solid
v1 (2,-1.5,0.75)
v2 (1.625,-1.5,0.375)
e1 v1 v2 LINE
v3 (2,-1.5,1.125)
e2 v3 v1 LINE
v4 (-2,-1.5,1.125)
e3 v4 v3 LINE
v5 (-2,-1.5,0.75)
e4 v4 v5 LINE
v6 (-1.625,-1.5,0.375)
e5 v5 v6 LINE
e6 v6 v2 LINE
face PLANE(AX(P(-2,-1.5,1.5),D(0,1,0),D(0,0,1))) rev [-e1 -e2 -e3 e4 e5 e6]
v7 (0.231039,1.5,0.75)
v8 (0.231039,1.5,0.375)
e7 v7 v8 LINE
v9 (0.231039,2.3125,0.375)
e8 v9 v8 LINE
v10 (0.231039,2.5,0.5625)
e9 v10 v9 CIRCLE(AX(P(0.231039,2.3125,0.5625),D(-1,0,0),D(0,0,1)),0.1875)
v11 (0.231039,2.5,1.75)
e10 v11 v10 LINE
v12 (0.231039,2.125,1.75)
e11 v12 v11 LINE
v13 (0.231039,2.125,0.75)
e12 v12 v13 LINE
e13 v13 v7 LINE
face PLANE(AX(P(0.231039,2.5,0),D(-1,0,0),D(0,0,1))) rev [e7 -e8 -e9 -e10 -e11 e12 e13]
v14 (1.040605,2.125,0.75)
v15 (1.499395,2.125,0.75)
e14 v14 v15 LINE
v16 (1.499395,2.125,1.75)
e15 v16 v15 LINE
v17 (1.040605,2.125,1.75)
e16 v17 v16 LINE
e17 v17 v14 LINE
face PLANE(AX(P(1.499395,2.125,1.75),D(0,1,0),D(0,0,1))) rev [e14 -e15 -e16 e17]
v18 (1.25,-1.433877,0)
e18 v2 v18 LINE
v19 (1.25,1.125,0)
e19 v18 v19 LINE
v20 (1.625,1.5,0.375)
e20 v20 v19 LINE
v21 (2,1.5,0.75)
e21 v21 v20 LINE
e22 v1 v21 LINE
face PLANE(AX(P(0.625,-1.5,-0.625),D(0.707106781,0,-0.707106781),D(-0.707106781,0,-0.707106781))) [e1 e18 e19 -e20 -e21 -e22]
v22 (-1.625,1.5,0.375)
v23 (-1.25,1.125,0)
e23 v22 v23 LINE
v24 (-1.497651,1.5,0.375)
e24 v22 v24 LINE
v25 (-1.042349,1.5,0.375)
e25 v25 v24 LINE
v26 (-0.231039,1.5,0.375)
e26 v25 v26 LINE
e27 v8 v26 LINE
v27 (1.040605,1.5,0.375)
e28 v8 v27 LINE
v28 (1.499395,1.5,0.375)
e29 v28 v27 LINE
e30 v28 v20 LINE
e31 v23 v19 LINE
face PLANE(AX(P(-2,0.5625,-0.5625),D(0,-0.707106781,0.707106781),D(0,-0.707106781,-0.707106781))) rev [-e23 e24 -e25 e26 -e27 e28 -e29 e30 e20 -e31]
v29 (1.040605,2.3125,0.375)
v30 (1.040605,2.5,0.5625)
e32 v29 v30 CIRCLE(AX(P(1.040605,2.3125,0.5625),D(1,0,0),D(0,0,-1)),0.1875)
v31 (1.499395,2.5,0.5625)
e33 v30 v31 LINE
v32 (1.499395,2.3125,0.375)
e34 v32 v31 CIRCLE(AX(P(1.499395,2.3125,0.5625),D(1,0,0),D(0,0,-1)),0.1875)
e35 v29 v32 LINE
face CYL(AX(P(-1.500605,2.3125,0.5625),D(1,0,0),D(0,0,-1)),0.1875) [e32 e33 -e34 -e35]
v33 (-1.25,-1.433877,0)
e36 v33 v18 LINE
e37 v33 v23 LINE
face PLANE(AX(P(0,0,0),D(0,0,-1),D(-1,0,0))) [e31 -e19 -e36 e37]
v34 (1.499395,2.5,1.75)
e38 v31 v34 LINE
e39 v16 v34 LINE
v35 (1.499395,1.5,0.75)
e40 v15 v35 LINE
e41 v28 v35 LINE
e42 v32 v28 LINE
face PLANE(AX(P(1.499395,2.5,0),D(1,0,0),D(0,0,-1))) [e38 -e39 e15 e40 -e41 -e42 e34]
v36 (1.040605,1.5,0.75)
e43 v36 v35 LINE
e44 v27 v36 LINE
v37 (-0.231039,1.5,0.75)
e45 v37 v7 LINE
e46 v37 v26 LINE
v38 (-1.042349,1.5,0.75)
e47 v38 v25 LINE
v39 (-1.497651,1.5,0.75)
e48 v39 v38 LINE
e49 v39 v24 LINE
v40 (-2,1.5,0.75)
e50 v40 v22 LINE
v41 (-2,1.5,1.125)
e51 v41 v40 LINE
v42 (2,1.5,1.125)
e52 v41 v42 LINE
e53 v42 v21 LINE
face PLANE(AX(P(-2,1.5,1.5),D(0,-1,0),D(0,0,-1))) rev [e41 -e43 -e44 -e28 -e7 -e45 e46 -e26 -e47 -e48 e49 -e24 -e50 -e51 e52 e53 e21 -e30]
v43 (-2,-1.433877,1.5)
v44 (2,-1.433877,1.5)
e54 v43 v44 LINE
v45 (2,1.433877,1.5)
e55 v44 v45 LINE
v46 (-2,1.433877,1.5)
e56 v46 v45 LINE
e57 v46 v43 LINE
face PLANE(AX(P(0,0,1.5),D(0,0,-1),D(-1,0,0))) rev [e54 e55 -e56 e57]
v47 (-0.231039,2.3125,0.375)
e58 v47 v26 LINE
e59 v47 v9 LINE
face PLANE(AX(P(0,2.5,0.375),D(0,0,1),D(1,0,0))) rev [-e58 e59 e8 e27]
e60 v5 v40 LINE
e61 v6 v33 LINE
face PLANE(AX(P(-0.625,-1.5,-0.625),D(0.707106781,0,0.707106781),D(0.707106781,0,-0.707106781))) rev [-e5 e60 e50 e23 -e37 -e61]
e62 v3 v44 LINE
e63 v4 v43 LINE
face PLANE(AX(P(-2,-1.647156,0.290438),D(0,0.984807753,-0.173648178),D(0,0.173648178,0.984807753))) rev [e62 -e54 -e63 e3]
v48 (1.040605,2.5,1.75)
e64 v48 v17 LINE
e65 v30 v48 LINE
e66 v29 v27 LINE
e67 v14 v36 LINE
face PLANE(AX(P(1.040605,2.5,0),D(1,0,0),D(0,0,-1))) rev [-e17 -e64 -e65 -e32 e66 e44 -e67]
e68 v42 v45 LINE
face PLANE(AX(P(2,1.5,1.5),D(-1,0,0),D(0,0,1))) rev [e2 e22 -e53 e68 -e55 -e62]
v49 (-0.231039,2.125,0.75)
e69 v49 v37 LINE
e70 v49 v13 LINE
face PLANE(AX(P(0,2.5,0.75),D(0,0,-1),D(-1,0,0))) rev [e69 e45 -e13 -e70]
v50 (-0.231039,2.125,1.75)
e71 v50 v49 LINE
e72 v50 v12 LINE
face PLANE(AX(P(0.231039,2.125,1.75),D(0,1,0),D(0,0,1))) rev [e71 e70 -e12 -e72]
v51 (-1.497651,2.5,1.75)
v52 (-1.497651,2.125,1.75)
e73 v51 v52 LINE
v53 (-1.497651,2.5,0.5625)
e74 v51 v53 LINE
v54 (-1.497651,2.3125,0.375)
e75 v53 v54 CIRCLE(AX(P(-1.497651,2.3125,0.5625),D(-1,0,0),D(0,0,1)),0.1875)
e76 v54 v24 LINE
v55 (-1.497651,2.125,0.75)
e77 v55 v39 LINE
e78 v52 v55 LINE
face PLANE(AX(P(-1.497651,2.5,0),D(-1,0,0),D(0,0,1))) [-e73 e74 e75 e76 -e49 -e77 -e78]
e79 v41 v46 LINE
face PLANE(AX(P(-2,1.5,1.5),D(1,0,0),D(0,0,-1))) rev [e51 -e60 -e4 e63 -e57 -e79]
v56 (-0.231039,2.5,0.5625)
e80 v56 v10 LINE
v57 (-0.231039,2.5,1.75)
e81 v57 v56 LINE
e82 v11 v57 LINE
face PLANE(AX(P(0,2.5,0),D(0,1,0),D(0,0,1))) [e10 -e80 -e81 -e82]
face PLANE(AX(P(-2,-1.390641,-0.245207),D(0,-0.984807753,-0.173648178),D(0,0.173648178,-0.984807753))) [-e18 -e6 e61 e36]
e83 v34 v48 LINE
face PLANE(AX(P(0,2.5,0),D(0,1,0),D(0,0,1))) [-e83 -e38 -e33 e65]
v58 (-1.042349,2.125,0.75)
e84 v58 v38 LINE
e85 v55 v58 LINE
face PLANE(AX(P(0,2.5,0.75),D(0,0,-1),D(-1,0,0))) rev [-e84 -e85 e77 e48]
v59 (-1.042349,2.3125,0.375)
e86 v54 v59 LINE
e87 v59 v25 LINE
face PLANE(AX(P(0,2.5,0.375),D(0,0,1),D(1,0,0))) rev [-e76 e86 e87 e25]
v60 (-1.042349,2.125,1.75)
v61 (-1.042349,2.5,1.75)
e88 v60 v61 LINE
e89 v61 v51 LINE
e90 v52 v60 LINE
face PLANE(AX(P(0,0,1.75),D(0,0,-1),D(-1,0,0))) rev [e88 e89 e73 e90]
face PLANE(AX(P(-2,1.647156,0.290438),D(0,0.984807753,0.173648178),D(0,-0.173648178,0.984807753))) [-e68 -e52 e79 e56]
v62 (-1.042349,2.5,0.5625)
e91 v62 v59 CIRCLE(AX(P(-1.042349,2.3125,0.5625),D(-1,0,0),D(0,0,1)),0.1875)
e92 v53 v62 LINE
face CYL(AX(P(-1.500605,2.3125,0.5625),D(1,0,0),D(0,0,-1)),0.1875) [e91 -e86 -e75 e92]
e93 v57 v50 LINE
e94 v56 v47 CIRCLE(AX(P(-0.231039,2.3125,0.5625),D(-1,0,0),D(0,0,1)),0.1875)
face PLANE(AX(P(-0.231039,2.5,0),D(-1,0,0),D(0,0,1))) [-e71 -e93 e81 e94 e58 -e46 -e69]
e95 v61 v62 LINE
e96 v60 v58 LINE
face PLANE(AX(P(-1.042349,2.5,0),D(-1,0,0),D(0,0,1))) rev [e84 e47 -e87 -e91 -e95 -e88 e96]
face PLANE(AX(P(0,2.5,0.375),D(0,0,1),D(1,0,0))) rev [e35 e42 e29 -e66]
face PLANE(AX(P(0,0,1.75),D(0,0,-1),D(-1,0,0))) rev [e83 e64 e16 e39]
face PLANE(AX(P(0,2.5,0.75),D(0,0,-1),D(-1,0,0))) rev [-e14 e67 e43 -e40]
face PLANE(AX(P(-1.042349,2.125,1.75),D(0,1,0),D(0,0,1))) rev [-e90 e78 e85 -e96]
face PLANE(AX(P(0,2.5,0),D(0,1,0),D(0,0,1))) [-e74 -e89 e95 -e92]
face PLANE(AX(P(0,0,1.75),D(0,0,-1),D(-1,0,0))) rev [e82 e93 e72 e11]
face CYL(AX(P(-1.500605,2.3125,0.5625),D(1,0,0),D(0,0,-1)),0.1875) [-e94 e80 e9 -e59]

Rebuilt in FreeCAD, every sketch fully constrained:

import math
import FreeCAD as App
import Part
import Sketcher

V = App.Vector
Q = App.Units.Quantity


def add_polygon(sketch, points):
    """Adds a closed chain of lines whose ends are joined by coincident constraints."""
    first, n = sketch.GeometryCount, len(points)
    for a, b in zip(points, points[1:] + points[:1]):
        sketch.addGeometry(Part.LineSegment(App.Vector(*a, 0), App.Vector(*b, 0)), False)
    for i in range(n):
        sketch.addConstraint(Sketcher.Constraint("Coincident", first + i, 2, first + (i + 1) % n, 1))

doc = App.newDocument("Part")
body = doc.addObject("PartDesign::Body", "Body")

sketch1 = doc.addObject("Sketcher::SketchObject", "Sketch")
body.addObject(sketch1)
sketch1.AttachmentSupport = (doc.XY_Plane, [""])
sketch1.MapMode = "FlatFace"
add_polygon(sketch1, [(-2, 1.5), (-2, -1.5), (2, -1.5), (2, 1.5)])
sketch1.addConstraint([
    Sketcher.Constraint("Vertical", 0),
    Sketcher.Constraint("Horizontal", 1),
    Sketcher.Constraint("Vertical", 2),
    Sketcher.Constraint("Horizontal", 3),
    Sketcher.Constraint("Symmetric", 0, 2, 2, 2, -1, 1),
    Sketcher.Constraint("DistanceX", 1, 1, 1, 2, 4.0),
    Sketcher.Constraint("DistanceY", 0, 2, 0, 1, 3.0),
])
pad1 = doc.addObject("PartDesign::Pad", "Pad")
body.addObject(pad1)
pad1.Profile = sketch1
pad1.Length = 1.5

sketch2 = doc.addObject("Sketcher::SketchObject", "Sketch001")
body.addObject(sketch2)
sketch2.AttachmentSupport = (doc.XZ_Plane, [""])
sketch2.MapMode = "FlatFace"
sketch2.AttachmentOffset = App.Placement(V(0, 0, -1.5), App.Rotation())
add_polygon(sketch2, [(-2, 0), (-2, 0.8), (-1.2, 0)])
add_polygon(sketch2, [(1.2, 0), (2, 0.8), (2, 0)])
sketch2.addConstraint([
    Sketcher.Constraint("Vertical", 0),
    Sketcher.Constraint("Horizontal", 2),
    Sketcher.Constraint("Vertical", 4),
    Sketcher.Constraint("Horizontal", 5),
    Sketcher.Constraint("Symmetric", 2, 2, 4, 2, -1, 1),
    Sketcher.Constraint("Symmetric", 1, 2, 5, 2, -2),
    Sketcher.Constraint("Perpendicular", 1, 3),
    Sketcher.Constraint("Horizontal", 0, 2, 3, 2),
    Sketcher.Constraint("DistanceX", 0, 2, -1, 1, 2.0),
    Sketcher.Constraint("DistanceX", 2, 2, 2, 1, 0.75),
])
pocket1 = doc.addObject("PartDesign::Pocket", "Pocket")
body.addObject(pocket1)
pocket1.Profile = sketch2
pocket1.Length = 3
pocket1.Reversed = True

sketch3 = doc.addObject("Sketcher::SketchObject", "Sketch002")
body.addObject(sketch3)
sketch3.AttachmentSupport = (doc.YZ_Plane, [""])
sketch3.MapMode = "FlatFace"
sketch3.AttachmentOffset = App.Placement(V(0, 0, 2), App.Rotation())
add_polygon(sketch3, [(1.12, 0), (1.5, 0), (1.5, 0.38)])
add_polygon(sketch3, [(-1.5, 0), (-1.43, 0), (-1.5, 0.38)])
add_polygon(sketch3, [(-1.5, 1.5), (-1.5, 1.12), (-1.43, 1.5)])
add_polygon(sketch3, [(1.43, 1.5), (1.5, 1.12), (1.5, 1.5)])
sketch3.addConstraint([
    Sketcher.Constraint("Horizontal", 0),
    Sketcher.Constraint("Vertical", 1),
    Sketcher.Constraint("Horizontal", 3),
    Sketcher.Constraint("Vertical", 5),
    Sketcher.Constraint("Vertical", 6),
    Sketcher.Constraint("Horizontal", 8),
    Sketcher.Constraint("Vertical", 10),
    Sketcher.Constraint("Horizontal", 11),
    Sketcher.Constraint("Symmetric", 0, 2, 5, 2, -1, 1),
    Sketcher.Constraint("Symmetric", 6, 2, 9, 2, -2),
    Sketcher.Constraint("Symmetric", 7, 2, 11, 2, -2),
    Sketcher.Constraint("PointOnObject", 0, 2, -1),
    Sketcher.Constraint("Parallel", 4, 9),
    Sketcher.Constraint("Horizontal", 1, 2, 4, 2),
    Sketcher.Constraint("Vertical", 5, 2, 6, 2),
    Sketcher.Constraint("Vertical", 3, 2, 7, 2),
    Sketcher.Constraint("Equal", 0, 1),
    Sketcher.Constraint("Angle", 4, Q("100 deg")),
    Sketcher.Constraint("DistanceX", 4, 2, 1, 2, 3.0),
    Sketcher.Constraint("DistanceY", -1, 1, 7, 2, 1.5),
    Sketcher.Constraint("DistanceX", 0, 1, 0, 2, 0.375),
])
pocket2 = doc.addObject("PartDesign::Pocket", "Pocket001")
body.addObject(pocket2)
pocket2.Profile = sketch3
pocket2.Length = 4

sketch4 = doc.addObject("Sketcher::SketchObject", "Sketch003")
body.addObject(sketch4)
sketch4.AttachmentSupport = (doc.XZ_Plane, [""])
sketch4.MapMode = "FlatFace"
sketch4.AttachmentOffset = App.Placement(V(0, 0, -1.5), App.Rotation())
add_polygon(sketch4, [(-1.04, 0.75), (-1.04, 0.38), (-1.5, 0.38), (-1.5, 0.75)])
add_polygon(sketch4, [(0.23, 0.75), (0.23, 0.38), (-0.23, 0.38), (-0.23, 0.75)])
add_polygon(sketch4, [(1.04, 0.38), (1.04, 0.75), (1.5, 0.75), (1.5, 0.38)])
sketch4.addConstraint([
    Sketcher.Constraint("Vertical", 0),
    Sketcher.Constraint("Horizontal", 1),
    Sketcher.Constraint("Vertical", 2),
    Sketcher.Constraint("Horizontal", 3),
    Sketcher.Constraint("Vertical", 4),
    Sketcher.Constraint("Horizontal", 5),
    Sketcher.Constraint("Vertical", 6),
    Sketcher.Constraint("Horizontal", 7),
    Sketcher.Constraint("Vertical", 8),
    Sketcher.Constraint("Horizontal", 9),
    Sketcher.Constraint("Vertical", 10),
    Sketcher.Constraint("Horizontal", 11),
    Sketcher.Constraint("Horizontal", 1, 2, 4, 2),
    Sketcher.Constraint("Horizontal", 3, 2, 6, 2),
    Sketcher.Constraint("Horizontal", 7, 2, 8, 2),
    Sketcher.Constraint("Horizontal", 5, 2, 10, 2),
    Sketcher.Constraint("DistanceY", 0, 2, 0, 1, 0.375),
    Sketcher.Constraint("DistanceY", -1, 1, 2, 2, 0.75),
    Sketcher.Constraint("DistanceX", 1, 2, 1, 1, 0.455301),
    Sketcher.Constraint("DistanceX", 5, 2, 5, 1, 0.462079),
    Sketcher.Constraint("DistanceX", 9, 1, 9, 2, 0.45879),
    Sketcher.Constraint("DistanceX", 0, 2, -1, 1, 1.042349),
    Sketcher.Constraint("DistanceX", -1, 1, 4, 2, 0.231039),
    Sketcher.Constraint("DistanceX", -1, 1, 8, 2, 1.040605),
])
pad2 = doc.addObject("PartDesign::Pad", "Pad001")
body.addObject(pad2)
pad2.Profile = sketch4
pad2.Length = 1
pad2.Reversed = True

sketch5 = doc.addObject("Sketcher::SketchObject", "Sketch004")
body.addObject(sketch5)
sketch5.AttachmentSupport = (doc.XY_Plane, [""])
sketch5.MapMode = "FlatFace"
sketch5.AttachmentOffset = App.Placement(V(0, 0, 0.75), App.Rotation())
add_polygon(sketch5, [(-0.23, 2.5), (-0.23, 2.12), (0.23, 2.12), (0.23, 2.5)])
add_polygon(sketch5, [(1.04, 2.5), (1.04, 2.12), (1.5, 2.12), (1.5, 2.5)])
add_polygon(sketch5, [(-1.5, 2.5), (-1.5, 2.12), (-1.04, 2.12), (-1.04, 2.5)])
sketch5.addConstraint([
    Sketcher.Constraint("Vertical", 0),
    Sketcher.Constraint("Horizontal", 1),
    Sketcher.Constraint("Vertical", 2),
    Sketcher.Constraint("Horizontal", 3),
    Sketcher.Constraint("Vertical", 4),
    Sketcher.Constraint("Horizontal", 5),
    Sketcher.Constraint("Vertical", 6),
    Sketcher.Constraint("Horizontal", 7),
    Sketcher.Constraint("Vertical", 8),
    Sketcher.Constraint("Horizontal", 9),
    Sketcher.Constraint("Vertical", 10),
    Sketcher.Constraint("Horizontal", 11),
    Sketcher.Constraint("Horizontal", 1, 2, 4, 2),
    Sketcher.Constraint("Horizontal", 3, 2, 6, 2),
    Sketcher.Constraint("Horizontal", 5, 2, 8, 2),
    Sketcher.Constraint("Horizontal", 7, 2, 10, 2),
    Sketcher.Constraint("DistanceY", -1, 1, 2, 2, 2.5),
    Sketcher.Constraint("DistanceY", 0, 2, 0, 1, 0.375),
    Sketcher.Constraint("DistanceX", 9, 1, 9, 2, 0.455301),
    Sketcher.Constraint("DistanceX", 1, 1, 1, 2, 0.462079),
    Sketcher.Constraint("DistanceX", 5, 1, 5, 2, 0.45879),
    Sketcher.Constraint("DistanceX", 0, 2, -1, 1, 0.231039),
    Sketcher.Constraint("DistanceX", 8, 2, -1, 1, 1.497651),
    Sketcher.Constraint("DistanceX", -1, 1, 4, 2, 1.040605),
])
pad3 = doc.addObject("PartDesign::Pad", "Pad002")
body.addObject(pad3)
pad3.Profile = sketch5
pad3.Length = 1

sketch6 = doc.addObject("Sketcher::SketchObject", "Sketch005")
body.addObject(sketch6)
sketch6.AttachmentSupport = (doc.YZ_Plane, [""])
sketch6.MapMode = "FlatFace"
sketch6.AttachmentOffset = App.Placement(V(0, 0, 1.499395), App.Rotation())
sketch6.addGeometry([
    Part.ArcOfCircle(Part.Circle(V(2.31, 0.56, 0), V(0, 0, 1), 0.19), math.radians(-90), math.radians(-45)),
    Part.LineSegment(V(2.31, 0.38, 0), V(2.5, 0.38, 0)),
    Part.LineSegment(V(2.5, 0.38, 0), V(2.5, 0.56, 0)),
    Part.ArcOfCircle(Part.Circle(V(2.31, 0.56, 0), V(0, 0, 1), 0.19), math.radians(-45), math.radians(0)),
], False)
sketch6.addConstraint([
    Sketcher.Constraint("Tangent", 0, 1, 1, 1),
    Sketcher.Constraint("Coincident", 1, 2, 2, 1),
    Sketcher.Constraint("Tangent", 2, 2, 3, 2),
    Sketcher.Constraint("Tangent", 3, 1, 0, 2),
    Sketcher.Constraint("Horizontal", 1),
    Sketcher.Constraint("Vertical", 2),
    Sketcher.Constraint("Equal", 0, 3),
    Sketcher.Constraint("DistanceX", -1, 1, 1, 2, 2.5),
    Sketcher.Constraint("Radius", 0, 0.1875),
    Sketcher.Constraint("DistanceY", -1, 1, 0, 1, 0.375),
    Sketcher.Constraint("DistanceX", -1, 1, 3, 1, 2.445083),
])
pocket3 = doc.addObject("PartDesign::Pocket", "Pocket002")
body.addObject(pocket3)
pocket3.Profile = sketch6
pocket3.Length = 3

doc.recompute()
